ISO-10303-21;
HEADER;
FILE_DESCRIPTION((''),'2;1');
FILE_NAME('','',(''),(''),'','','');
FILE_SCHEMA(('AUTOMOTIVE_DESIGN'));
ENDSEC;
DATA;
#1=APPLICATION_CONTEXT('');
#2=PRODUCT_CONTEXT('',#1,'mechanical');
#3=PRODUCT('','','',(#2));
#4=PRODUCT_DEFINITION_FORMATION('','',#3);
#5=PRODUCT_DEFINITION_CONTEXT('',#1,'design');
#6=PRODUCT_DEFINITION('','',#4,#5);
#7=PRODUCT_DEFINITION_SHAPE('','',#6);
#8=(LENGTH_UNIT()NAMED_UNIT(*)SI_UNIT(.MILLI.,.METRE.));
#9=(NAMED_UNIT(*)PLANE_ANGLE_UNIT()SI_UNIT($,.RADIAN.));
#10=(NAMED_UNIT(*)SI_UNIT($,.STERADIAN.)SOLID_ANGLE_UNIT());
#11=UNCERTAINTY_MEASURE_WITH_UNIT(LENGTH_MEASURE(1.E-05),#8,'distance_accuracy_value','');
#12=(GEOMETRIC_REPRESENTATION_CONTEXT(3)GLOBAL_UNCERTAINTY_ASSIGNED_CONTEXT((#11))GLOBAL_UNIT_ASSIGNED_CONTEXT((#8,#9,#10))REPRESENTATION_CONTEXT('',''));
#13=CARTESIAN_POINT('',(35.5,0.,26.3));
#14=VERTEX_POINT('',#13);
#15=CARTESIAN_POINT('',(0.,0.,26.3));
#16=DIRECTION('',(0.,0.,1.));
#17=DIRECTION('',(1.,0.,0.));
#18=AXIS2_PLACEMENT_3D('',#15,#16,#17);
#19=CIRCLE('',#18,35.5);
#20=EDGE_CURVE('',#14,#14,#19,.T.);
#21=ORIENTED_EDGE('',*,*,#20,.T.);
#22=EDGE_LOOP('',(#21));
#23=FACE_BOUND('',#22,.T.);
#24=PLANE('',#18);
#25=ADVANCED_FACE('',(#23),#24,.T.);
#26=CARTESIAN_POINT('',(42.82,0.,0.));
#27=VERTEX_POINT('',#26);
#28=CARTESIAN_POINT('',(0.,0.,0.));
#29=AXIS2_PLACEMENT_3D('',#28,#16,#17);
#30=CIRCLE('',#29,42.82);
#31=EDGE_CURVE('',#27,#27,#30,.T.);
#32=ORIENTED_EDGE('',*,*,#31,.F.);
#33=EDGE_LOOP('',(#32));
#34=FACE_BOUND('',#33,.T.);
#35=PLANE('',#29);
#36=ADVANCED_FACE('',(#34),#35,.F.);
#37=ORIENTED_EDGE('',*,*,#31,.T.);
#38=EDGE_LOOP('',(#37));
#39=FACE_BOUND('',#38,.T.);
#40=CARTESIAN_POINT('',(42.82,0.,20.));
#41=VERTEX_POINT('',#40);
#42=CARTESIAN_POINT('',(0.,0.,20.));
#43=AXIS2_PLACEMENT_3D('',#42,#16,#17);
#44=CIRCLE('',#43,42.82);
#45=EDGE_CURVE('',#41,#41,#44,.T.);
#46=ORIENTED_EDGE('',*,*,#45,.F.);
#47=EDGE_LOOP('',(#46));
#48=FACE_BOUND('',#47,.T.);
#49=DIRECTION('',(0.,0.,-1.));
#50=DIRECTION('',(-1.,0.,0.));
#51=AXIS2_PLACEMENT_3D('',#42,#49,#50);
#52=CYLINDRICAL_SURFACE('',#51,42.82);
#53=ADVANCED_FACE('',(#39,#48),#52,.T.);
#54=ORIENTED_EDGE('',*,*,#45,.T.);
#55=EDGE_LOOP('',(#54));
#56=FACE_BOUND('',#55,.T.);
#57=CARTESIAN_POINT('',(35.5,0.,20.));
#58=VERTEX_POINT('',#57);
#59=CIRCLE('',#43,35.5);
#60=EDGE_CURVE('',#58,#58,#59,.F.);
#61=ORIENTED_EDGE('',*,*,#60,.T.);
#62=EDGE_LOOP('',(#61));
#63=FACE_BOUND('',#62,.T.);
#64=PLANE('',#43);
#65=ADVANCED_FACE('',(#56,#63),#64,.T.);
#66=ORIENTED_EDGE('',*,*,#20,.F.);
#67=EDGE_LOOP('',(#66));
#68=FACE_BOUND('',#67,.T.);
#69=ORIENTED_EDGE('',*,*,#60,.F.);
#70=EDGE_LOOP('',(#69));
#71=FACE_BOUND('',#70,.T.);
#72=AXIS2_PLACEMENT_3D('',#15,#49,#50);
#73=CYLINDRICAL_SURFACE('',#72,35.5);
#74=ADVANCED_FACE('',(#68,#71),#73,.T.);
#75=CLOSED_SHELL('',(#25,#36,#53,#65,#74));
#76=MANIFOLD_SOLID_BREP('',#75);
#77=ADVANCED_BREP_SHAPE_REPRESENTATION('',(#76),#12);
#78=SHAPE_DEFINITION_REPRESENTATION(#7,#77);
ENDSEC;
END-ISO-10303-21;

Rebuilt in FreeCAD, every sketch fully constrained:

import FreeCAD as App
import Part
import Sketcher

V = App.Vector

doc = App.newDocument("Part")
body = doc.addObject("PartDesign::Body", "Body")

sketch1 = body.newObject("Sketcher::SketchObject", "Sketch")
sketch1.AttachmentSupport = (doc.getObject("XY_Plane"), [""])
sketch1.MapMode = "FlatFace"
sketch1.addGeometry([
    Part.Circle(V(0, 0, 0), V(0, 0, 1), 43),
    Part.Circle(V(0, 0, 0), V(0, 0, 1), 36),
], False)
sketch1.addConstraint([
    Sketcher.Constraint("Coincident", 0, 3, -1, 1),
    Sketcher.Constraint("Coincident", 1, 3, -1, 1),
    Sketcher.Constraint("Diameter", 1, 71.0),
    Sketcher.Constraint("Diameter", 0, 85.64),
])
pad1 = body.newObject("PartDesign::Pad", "Pad")
pad1.Profile = sketch1
pad1.Length = 20

sketch2 = body.newObject("Sketcher::SketchObject", "Sketch001")
sketch2.AttachmentSupport = (doc.getObject("XY_Plane"), [""])
sketch2.MapMode = "FlatFace"
sketch2.addGeometry(Part.Circle(V(0, 0, 0), V(0, 0, 1), 36), False)
sketch2.addConstraint([
    Sketcher.Constraint("Coincident", 0, 3, -1, 1),
    Sketcher.Constraint("Diameter", 0, 71.0),
])
pad2 = body.newObject("PartDesign::Pad", "Pad001")
pad2.Profile = sketch2
pad2.Length = 26.3

doc.recompute()
